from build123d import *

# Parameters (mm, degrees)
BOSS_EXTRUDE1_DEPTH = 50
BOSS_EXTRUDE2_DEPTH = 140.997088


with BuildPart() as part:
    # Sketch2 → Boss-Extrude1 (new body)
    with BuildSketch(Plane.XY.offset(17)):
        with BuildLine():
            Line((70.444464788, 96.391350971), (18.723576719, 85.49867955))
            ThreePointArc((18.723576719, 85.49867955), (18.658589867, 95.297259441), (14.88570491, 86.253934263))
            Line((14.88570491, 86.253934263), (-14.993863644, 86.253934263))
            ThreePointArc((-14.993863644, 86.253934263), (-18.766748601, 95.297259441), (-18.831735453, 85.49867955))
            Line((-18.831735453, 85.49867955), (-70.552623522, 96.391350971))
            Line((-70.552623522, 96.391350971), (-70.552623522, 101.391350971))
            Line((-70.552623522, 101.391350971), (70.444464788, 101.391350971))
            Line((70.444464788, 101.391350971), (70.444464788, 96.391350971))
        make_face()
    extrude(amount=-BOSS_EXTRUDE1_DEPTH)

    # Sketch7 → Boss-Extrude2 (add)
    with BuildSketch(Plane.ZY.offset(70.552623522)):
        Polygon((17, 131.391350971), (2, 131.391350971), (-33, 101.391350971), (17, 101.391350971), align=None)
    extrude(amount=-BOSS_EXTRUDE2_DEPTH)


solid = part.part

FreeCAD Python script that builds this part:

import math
import FreeCAD as App
import Part
import Sketcher

V = App.Vector

doc = App.newDocument("Part")
body = doc.addObject("PartDesign::Body", "Body")

# Sketch on XY plane
sketch1 = doc.addObject("Sketcher::SketchObject", "Sketch")
body.addObject(sketch1)
sketch1.AttachmentSupport = (doc.XY_Plane, [""])
sketch1.MapMode = "FlatFace"
sketch1.AttachmentOffset = App.Placement(V(0, 0, 17), App.Rotation())
sketch1.addGeometry([
    Part.LineSegment(V(18.7, 85.5, 0), V(70.4, 96.4, 0)),  # 0
    Part.LineSegment(V(70.4, 96.4, 0), V(70.4, 101.4, 0)),  # 1
    Part.LineSegment(V(70.4, 101.4, 0), V(-70.6, 101.4, 0)),  # 2
    Part.LineSegment(V(-70.6, 101.4, 0), V(-70.6, 96.4, 0)),  # 3
    Part.LineSegment(V(-70.6, 96.4, 0), V(-18.8, 85.5, 0)),  # 4
    Part.ArcOfCircle(Part.Circle(V(-17.8, 90.4, 0), V(0, 0, 1), 5), math.radians(-56), math.radians(258)),  # 5
    Part.LineSegment(V(-15, 86.3, 0), V(14.9, 86.3, 0)),  # 6
    Part.ArcOfCircle(Part.Circle(V(17.7, 90.4, 0), V(0, 0, 1), 5), math.radians(-78), math.radians(236)),  # 7
], False)
sketch1.addConstraint([
    Sketcher.Constraint("Coincident", 0, 2, 1, 1),
    Sketcher.Constraint("Coincident", 1, 2, 2, 1),
    Sketcher.Constraint("Coincident", 2, 2, 3, 1),
    Sketcher.Constraint("Coincident", 3, 2, 4, 1),
    Sketcher.Constraint("Tangent", 4, 2, 5, 2),
    Sketcher.Constraint("Coincident", 5, 1, 6, 1),
    Sketcher.Constraint("Coincident", 6, 2, 7, 2),
    Sketcher.Constraint("Tangent", 7, 1, 0, 1),
    Sketcher.Constraint("Vertical", 1),
    Sketcher.Constraint("Horizontal", 2),
    Sketcher.Constraint("Vertical", 3),
    Sketcher.Constraint("Horizontal", 6),
    Sketcher.Constraint("Equal", 5, 7),
    Sketcher.Constraint("Horizontal", 5, 3, 7, 3),
    Sketcher.Constraint("Horizontal", 0, 2, 3, 2),
    Sketcher.Constraint("Horizontal", 4, 2, 7, 1),
    Sketcher.Constraint("Radius", 5, 5.0),
    Sketcher.Constraint("DistanceY", 1, 1, 1, 2, 5.0),
    Sketcher.Constraint("DistanceY", 7, 3, 0, 2, 6.0),
    Sketcher.Constraint("DistanceX", 2, 2, 2, 1, 140.997088),
    Sketcher.Constraint("DistanceX", 6, 1, 6, 2, 29.879569),
    Sketcher.Constraint("DistanceX", 4, 2, 0, 2, 89.2762),
    Sketcher.Constraint("DistanceY", -1, 1, 5, 3, 90.391351),
    Sketcher.Constraint("DistanceX", 5, 3, -1, 1, 17.801315),
])
pad1 = doc.addObject("PartDesign::Pad", "Pad")
body.addObject(pad1)
pad1.Profile = sketch1
pad1.Length = 50
pad1.Reversed = True

# Sketch on YZ plane
sketch2 = doc.addObject("Sketcher::SketchObject", "Sketch001")
body.addObject(sketch2)
sketch2.AttachmentSupport = (doc.YZ_Plane, [""])
sketch2.MapMode = "FlatFace"
sketch2.AttachmentOffset = App.Placement(V(0, 0, -70.552624), App.Rotation())
sketch2.addGeometry([
    Part.LineSegment(V(131, 17, 0), V(131, 2, 0)),
    Part.LineSegment(V(131, 2, 0), V(101, -33, 0)),
    Part.LineSegment(V(101, -33, 0), V(101, 17, 0)),
    Part.LineSegment(V(101, 17, 0), V(131, 17, 0)),
], False)
sketch2.addConstraint([
    Sketcher.Constraint("Coincident", 0, 2, 1, 1),
    Sketcher.Constraint("Coincident", 1, 2, 2, 1),
    Sketcher.Constraint("Coincident", 2, 2, 3, 1),
    Sketcher.Constraint("Coincident", 3, 2, 0, 1),
    Sketcher.Constraint("Vertical", 0),
    Sketcher.Constraint("Vertical", 2),
    Sketcher.Constraint("Horizontal", 3),
    Sketcher.Constraint("DistanceX", 3, 1, 3, 2, 30.0),
    Sketcher.Constraint("DistanceY", 0, 2, 0, 1, 15.0),
    Sketcher.Constraint("DistanceY", 2, 1, 2, 2, 50.0),
    Sketcher.Constraint("DistanceY", -1, 1, 0, 2, 2.0),
    Sketcher.Constraint("DistanceX", -1, 1, 0, 2, 131.391351),
])
pad2 = doc.addObject("PartDesign::Pad", "Pad001")
body.addObject(pad2)
pad2.Profile = sketch2
pad2.Length = 140.997088

doc.recompute()
